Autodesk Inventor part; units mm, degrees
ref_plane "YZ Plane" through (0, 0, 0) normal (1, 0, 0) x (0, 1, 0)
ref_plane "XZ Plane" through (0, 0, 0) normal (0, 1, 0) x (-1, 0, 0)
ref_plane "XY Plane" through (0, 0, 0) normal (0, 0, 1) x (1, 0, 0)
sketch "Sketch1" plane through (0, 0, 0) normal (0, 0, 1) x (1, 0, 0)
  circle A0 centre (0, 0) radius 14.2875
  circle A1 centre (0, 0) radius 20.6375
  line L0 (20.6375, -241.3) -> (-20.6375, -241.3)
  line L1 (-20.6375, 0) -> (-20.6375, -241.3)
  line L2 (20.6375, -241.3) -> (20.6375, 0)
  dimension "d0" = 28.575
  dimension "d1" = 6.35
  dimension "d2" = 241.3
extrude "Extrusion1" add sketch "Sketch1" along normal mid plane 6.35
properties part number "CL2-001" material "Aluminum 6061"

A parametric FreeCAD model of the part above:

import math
import FreeCAD as App
import Part
import Sketcher
from FreeCAD import Vector
Q = App.Units.Quantity

doc = App.newDocument("Part")
params = doc.addObject("Spreadsheet::Sheet", "Params")
for row, (alias, value) in enumerate([
    ("sketch1_diameter", "1.125 in"),
    ("sketch1_height", "9.5 in"),
    ("sketch1_radius", "0.8125 in"),
    ("pad1_length", "0.25 in"),
], start=1):
    params.set(f"A{row}", alias)
    params.set(f"B{row}", "=" + value)
    params.setAlias(f"B{row}", alias)

body = doc.addObject("PartDesign::Body", "Body")

sketch1 = doc.addObject("Sketcher::SketchObject", "Sketch")
body.addObject(sketch1)
sketch1.AttachmentSupport = (doc.XY_Plane, [""])
sketch1.MapMode = "FlatFace"
sketch1.addGeometry(Part.ArcOfCircle(Part.Circle(Vector(0, 0, 0), Vector(0, 0, 1), 21), math.radians(0), math.radians(180)), False)
sketch1.addGeometry(Part.LineSegment(Vector(-21, 0, 0), Vector(-21, -241, 0)), False)
sketch1.addGeometry(Part.LineSegment(Vector(-21, -241, 0), Vector(21, -241, 0)), False)
sketch1.addGeometry(Part.LineSegment(Vector(21, -241, 0), Vector(21, 0, 0)), False)
sketch1.addGeometry(Part.Circle(Vector(0, 0, 0), Vector(0, 0, 1), 14), False)
sketch1.addConstraint(Sketcher.Constraint("Tangent", 0, 2, 1, 1))
sketch1.addConstraint(Sketcher.Constraint("Coincident", 1, 2, 2, 1))
sketch1.addConstraint(Sketcher.Constraint("Coincident", 2, 2, 3, 1))
sketch1.addConstraint(Sketcher.Constraint("Tangent", 3, 2, 0, 1))
sketch1.addConstraint(Sketcher.Constraint("Vertical", 1))
sketch1.addConstraint(Sketcher.Constraint("Horizontal", 2))
sketch1.addConstraint(Sketcher.Constraint("Vertical", 3))
sketch1.addConstraint(Sketcher.Constraint("Coincident", 0, 3, -1, 1))
sketch1.addConstraint(Sketcher.Constraint("Coincident", 4, 3, -1, 1))
sketch1.addConstraint(Sketcher.Constraint("Diameter", 4, Q("1.125 in")))
sketch1.addConstraint(Sketcher.Constraint("DistanceY", 1, 2, 1, 1, Q("9.5 in")))
sketch1.addConstraint(Sketcher.Constraint("Radius", 0, Q("0.8125 in")))
sketch1.setExpression("Constraints[9]", "Params.sketch1_diameter")
sketch1.setExpression("Constraints[10]", "Params.sketch1_height")
sketch1.setExpression("Constraints[11]", "Params.sketch1_radius")
pad1 = doc.addObject("PartDesign::Pad", "Pad")
body.addObject(pad1)
pad1.Profile = sketch1
pad1.setExpression("Length", "Params.pad1_length")
pad1.Midplane = True

doc.recompute()
